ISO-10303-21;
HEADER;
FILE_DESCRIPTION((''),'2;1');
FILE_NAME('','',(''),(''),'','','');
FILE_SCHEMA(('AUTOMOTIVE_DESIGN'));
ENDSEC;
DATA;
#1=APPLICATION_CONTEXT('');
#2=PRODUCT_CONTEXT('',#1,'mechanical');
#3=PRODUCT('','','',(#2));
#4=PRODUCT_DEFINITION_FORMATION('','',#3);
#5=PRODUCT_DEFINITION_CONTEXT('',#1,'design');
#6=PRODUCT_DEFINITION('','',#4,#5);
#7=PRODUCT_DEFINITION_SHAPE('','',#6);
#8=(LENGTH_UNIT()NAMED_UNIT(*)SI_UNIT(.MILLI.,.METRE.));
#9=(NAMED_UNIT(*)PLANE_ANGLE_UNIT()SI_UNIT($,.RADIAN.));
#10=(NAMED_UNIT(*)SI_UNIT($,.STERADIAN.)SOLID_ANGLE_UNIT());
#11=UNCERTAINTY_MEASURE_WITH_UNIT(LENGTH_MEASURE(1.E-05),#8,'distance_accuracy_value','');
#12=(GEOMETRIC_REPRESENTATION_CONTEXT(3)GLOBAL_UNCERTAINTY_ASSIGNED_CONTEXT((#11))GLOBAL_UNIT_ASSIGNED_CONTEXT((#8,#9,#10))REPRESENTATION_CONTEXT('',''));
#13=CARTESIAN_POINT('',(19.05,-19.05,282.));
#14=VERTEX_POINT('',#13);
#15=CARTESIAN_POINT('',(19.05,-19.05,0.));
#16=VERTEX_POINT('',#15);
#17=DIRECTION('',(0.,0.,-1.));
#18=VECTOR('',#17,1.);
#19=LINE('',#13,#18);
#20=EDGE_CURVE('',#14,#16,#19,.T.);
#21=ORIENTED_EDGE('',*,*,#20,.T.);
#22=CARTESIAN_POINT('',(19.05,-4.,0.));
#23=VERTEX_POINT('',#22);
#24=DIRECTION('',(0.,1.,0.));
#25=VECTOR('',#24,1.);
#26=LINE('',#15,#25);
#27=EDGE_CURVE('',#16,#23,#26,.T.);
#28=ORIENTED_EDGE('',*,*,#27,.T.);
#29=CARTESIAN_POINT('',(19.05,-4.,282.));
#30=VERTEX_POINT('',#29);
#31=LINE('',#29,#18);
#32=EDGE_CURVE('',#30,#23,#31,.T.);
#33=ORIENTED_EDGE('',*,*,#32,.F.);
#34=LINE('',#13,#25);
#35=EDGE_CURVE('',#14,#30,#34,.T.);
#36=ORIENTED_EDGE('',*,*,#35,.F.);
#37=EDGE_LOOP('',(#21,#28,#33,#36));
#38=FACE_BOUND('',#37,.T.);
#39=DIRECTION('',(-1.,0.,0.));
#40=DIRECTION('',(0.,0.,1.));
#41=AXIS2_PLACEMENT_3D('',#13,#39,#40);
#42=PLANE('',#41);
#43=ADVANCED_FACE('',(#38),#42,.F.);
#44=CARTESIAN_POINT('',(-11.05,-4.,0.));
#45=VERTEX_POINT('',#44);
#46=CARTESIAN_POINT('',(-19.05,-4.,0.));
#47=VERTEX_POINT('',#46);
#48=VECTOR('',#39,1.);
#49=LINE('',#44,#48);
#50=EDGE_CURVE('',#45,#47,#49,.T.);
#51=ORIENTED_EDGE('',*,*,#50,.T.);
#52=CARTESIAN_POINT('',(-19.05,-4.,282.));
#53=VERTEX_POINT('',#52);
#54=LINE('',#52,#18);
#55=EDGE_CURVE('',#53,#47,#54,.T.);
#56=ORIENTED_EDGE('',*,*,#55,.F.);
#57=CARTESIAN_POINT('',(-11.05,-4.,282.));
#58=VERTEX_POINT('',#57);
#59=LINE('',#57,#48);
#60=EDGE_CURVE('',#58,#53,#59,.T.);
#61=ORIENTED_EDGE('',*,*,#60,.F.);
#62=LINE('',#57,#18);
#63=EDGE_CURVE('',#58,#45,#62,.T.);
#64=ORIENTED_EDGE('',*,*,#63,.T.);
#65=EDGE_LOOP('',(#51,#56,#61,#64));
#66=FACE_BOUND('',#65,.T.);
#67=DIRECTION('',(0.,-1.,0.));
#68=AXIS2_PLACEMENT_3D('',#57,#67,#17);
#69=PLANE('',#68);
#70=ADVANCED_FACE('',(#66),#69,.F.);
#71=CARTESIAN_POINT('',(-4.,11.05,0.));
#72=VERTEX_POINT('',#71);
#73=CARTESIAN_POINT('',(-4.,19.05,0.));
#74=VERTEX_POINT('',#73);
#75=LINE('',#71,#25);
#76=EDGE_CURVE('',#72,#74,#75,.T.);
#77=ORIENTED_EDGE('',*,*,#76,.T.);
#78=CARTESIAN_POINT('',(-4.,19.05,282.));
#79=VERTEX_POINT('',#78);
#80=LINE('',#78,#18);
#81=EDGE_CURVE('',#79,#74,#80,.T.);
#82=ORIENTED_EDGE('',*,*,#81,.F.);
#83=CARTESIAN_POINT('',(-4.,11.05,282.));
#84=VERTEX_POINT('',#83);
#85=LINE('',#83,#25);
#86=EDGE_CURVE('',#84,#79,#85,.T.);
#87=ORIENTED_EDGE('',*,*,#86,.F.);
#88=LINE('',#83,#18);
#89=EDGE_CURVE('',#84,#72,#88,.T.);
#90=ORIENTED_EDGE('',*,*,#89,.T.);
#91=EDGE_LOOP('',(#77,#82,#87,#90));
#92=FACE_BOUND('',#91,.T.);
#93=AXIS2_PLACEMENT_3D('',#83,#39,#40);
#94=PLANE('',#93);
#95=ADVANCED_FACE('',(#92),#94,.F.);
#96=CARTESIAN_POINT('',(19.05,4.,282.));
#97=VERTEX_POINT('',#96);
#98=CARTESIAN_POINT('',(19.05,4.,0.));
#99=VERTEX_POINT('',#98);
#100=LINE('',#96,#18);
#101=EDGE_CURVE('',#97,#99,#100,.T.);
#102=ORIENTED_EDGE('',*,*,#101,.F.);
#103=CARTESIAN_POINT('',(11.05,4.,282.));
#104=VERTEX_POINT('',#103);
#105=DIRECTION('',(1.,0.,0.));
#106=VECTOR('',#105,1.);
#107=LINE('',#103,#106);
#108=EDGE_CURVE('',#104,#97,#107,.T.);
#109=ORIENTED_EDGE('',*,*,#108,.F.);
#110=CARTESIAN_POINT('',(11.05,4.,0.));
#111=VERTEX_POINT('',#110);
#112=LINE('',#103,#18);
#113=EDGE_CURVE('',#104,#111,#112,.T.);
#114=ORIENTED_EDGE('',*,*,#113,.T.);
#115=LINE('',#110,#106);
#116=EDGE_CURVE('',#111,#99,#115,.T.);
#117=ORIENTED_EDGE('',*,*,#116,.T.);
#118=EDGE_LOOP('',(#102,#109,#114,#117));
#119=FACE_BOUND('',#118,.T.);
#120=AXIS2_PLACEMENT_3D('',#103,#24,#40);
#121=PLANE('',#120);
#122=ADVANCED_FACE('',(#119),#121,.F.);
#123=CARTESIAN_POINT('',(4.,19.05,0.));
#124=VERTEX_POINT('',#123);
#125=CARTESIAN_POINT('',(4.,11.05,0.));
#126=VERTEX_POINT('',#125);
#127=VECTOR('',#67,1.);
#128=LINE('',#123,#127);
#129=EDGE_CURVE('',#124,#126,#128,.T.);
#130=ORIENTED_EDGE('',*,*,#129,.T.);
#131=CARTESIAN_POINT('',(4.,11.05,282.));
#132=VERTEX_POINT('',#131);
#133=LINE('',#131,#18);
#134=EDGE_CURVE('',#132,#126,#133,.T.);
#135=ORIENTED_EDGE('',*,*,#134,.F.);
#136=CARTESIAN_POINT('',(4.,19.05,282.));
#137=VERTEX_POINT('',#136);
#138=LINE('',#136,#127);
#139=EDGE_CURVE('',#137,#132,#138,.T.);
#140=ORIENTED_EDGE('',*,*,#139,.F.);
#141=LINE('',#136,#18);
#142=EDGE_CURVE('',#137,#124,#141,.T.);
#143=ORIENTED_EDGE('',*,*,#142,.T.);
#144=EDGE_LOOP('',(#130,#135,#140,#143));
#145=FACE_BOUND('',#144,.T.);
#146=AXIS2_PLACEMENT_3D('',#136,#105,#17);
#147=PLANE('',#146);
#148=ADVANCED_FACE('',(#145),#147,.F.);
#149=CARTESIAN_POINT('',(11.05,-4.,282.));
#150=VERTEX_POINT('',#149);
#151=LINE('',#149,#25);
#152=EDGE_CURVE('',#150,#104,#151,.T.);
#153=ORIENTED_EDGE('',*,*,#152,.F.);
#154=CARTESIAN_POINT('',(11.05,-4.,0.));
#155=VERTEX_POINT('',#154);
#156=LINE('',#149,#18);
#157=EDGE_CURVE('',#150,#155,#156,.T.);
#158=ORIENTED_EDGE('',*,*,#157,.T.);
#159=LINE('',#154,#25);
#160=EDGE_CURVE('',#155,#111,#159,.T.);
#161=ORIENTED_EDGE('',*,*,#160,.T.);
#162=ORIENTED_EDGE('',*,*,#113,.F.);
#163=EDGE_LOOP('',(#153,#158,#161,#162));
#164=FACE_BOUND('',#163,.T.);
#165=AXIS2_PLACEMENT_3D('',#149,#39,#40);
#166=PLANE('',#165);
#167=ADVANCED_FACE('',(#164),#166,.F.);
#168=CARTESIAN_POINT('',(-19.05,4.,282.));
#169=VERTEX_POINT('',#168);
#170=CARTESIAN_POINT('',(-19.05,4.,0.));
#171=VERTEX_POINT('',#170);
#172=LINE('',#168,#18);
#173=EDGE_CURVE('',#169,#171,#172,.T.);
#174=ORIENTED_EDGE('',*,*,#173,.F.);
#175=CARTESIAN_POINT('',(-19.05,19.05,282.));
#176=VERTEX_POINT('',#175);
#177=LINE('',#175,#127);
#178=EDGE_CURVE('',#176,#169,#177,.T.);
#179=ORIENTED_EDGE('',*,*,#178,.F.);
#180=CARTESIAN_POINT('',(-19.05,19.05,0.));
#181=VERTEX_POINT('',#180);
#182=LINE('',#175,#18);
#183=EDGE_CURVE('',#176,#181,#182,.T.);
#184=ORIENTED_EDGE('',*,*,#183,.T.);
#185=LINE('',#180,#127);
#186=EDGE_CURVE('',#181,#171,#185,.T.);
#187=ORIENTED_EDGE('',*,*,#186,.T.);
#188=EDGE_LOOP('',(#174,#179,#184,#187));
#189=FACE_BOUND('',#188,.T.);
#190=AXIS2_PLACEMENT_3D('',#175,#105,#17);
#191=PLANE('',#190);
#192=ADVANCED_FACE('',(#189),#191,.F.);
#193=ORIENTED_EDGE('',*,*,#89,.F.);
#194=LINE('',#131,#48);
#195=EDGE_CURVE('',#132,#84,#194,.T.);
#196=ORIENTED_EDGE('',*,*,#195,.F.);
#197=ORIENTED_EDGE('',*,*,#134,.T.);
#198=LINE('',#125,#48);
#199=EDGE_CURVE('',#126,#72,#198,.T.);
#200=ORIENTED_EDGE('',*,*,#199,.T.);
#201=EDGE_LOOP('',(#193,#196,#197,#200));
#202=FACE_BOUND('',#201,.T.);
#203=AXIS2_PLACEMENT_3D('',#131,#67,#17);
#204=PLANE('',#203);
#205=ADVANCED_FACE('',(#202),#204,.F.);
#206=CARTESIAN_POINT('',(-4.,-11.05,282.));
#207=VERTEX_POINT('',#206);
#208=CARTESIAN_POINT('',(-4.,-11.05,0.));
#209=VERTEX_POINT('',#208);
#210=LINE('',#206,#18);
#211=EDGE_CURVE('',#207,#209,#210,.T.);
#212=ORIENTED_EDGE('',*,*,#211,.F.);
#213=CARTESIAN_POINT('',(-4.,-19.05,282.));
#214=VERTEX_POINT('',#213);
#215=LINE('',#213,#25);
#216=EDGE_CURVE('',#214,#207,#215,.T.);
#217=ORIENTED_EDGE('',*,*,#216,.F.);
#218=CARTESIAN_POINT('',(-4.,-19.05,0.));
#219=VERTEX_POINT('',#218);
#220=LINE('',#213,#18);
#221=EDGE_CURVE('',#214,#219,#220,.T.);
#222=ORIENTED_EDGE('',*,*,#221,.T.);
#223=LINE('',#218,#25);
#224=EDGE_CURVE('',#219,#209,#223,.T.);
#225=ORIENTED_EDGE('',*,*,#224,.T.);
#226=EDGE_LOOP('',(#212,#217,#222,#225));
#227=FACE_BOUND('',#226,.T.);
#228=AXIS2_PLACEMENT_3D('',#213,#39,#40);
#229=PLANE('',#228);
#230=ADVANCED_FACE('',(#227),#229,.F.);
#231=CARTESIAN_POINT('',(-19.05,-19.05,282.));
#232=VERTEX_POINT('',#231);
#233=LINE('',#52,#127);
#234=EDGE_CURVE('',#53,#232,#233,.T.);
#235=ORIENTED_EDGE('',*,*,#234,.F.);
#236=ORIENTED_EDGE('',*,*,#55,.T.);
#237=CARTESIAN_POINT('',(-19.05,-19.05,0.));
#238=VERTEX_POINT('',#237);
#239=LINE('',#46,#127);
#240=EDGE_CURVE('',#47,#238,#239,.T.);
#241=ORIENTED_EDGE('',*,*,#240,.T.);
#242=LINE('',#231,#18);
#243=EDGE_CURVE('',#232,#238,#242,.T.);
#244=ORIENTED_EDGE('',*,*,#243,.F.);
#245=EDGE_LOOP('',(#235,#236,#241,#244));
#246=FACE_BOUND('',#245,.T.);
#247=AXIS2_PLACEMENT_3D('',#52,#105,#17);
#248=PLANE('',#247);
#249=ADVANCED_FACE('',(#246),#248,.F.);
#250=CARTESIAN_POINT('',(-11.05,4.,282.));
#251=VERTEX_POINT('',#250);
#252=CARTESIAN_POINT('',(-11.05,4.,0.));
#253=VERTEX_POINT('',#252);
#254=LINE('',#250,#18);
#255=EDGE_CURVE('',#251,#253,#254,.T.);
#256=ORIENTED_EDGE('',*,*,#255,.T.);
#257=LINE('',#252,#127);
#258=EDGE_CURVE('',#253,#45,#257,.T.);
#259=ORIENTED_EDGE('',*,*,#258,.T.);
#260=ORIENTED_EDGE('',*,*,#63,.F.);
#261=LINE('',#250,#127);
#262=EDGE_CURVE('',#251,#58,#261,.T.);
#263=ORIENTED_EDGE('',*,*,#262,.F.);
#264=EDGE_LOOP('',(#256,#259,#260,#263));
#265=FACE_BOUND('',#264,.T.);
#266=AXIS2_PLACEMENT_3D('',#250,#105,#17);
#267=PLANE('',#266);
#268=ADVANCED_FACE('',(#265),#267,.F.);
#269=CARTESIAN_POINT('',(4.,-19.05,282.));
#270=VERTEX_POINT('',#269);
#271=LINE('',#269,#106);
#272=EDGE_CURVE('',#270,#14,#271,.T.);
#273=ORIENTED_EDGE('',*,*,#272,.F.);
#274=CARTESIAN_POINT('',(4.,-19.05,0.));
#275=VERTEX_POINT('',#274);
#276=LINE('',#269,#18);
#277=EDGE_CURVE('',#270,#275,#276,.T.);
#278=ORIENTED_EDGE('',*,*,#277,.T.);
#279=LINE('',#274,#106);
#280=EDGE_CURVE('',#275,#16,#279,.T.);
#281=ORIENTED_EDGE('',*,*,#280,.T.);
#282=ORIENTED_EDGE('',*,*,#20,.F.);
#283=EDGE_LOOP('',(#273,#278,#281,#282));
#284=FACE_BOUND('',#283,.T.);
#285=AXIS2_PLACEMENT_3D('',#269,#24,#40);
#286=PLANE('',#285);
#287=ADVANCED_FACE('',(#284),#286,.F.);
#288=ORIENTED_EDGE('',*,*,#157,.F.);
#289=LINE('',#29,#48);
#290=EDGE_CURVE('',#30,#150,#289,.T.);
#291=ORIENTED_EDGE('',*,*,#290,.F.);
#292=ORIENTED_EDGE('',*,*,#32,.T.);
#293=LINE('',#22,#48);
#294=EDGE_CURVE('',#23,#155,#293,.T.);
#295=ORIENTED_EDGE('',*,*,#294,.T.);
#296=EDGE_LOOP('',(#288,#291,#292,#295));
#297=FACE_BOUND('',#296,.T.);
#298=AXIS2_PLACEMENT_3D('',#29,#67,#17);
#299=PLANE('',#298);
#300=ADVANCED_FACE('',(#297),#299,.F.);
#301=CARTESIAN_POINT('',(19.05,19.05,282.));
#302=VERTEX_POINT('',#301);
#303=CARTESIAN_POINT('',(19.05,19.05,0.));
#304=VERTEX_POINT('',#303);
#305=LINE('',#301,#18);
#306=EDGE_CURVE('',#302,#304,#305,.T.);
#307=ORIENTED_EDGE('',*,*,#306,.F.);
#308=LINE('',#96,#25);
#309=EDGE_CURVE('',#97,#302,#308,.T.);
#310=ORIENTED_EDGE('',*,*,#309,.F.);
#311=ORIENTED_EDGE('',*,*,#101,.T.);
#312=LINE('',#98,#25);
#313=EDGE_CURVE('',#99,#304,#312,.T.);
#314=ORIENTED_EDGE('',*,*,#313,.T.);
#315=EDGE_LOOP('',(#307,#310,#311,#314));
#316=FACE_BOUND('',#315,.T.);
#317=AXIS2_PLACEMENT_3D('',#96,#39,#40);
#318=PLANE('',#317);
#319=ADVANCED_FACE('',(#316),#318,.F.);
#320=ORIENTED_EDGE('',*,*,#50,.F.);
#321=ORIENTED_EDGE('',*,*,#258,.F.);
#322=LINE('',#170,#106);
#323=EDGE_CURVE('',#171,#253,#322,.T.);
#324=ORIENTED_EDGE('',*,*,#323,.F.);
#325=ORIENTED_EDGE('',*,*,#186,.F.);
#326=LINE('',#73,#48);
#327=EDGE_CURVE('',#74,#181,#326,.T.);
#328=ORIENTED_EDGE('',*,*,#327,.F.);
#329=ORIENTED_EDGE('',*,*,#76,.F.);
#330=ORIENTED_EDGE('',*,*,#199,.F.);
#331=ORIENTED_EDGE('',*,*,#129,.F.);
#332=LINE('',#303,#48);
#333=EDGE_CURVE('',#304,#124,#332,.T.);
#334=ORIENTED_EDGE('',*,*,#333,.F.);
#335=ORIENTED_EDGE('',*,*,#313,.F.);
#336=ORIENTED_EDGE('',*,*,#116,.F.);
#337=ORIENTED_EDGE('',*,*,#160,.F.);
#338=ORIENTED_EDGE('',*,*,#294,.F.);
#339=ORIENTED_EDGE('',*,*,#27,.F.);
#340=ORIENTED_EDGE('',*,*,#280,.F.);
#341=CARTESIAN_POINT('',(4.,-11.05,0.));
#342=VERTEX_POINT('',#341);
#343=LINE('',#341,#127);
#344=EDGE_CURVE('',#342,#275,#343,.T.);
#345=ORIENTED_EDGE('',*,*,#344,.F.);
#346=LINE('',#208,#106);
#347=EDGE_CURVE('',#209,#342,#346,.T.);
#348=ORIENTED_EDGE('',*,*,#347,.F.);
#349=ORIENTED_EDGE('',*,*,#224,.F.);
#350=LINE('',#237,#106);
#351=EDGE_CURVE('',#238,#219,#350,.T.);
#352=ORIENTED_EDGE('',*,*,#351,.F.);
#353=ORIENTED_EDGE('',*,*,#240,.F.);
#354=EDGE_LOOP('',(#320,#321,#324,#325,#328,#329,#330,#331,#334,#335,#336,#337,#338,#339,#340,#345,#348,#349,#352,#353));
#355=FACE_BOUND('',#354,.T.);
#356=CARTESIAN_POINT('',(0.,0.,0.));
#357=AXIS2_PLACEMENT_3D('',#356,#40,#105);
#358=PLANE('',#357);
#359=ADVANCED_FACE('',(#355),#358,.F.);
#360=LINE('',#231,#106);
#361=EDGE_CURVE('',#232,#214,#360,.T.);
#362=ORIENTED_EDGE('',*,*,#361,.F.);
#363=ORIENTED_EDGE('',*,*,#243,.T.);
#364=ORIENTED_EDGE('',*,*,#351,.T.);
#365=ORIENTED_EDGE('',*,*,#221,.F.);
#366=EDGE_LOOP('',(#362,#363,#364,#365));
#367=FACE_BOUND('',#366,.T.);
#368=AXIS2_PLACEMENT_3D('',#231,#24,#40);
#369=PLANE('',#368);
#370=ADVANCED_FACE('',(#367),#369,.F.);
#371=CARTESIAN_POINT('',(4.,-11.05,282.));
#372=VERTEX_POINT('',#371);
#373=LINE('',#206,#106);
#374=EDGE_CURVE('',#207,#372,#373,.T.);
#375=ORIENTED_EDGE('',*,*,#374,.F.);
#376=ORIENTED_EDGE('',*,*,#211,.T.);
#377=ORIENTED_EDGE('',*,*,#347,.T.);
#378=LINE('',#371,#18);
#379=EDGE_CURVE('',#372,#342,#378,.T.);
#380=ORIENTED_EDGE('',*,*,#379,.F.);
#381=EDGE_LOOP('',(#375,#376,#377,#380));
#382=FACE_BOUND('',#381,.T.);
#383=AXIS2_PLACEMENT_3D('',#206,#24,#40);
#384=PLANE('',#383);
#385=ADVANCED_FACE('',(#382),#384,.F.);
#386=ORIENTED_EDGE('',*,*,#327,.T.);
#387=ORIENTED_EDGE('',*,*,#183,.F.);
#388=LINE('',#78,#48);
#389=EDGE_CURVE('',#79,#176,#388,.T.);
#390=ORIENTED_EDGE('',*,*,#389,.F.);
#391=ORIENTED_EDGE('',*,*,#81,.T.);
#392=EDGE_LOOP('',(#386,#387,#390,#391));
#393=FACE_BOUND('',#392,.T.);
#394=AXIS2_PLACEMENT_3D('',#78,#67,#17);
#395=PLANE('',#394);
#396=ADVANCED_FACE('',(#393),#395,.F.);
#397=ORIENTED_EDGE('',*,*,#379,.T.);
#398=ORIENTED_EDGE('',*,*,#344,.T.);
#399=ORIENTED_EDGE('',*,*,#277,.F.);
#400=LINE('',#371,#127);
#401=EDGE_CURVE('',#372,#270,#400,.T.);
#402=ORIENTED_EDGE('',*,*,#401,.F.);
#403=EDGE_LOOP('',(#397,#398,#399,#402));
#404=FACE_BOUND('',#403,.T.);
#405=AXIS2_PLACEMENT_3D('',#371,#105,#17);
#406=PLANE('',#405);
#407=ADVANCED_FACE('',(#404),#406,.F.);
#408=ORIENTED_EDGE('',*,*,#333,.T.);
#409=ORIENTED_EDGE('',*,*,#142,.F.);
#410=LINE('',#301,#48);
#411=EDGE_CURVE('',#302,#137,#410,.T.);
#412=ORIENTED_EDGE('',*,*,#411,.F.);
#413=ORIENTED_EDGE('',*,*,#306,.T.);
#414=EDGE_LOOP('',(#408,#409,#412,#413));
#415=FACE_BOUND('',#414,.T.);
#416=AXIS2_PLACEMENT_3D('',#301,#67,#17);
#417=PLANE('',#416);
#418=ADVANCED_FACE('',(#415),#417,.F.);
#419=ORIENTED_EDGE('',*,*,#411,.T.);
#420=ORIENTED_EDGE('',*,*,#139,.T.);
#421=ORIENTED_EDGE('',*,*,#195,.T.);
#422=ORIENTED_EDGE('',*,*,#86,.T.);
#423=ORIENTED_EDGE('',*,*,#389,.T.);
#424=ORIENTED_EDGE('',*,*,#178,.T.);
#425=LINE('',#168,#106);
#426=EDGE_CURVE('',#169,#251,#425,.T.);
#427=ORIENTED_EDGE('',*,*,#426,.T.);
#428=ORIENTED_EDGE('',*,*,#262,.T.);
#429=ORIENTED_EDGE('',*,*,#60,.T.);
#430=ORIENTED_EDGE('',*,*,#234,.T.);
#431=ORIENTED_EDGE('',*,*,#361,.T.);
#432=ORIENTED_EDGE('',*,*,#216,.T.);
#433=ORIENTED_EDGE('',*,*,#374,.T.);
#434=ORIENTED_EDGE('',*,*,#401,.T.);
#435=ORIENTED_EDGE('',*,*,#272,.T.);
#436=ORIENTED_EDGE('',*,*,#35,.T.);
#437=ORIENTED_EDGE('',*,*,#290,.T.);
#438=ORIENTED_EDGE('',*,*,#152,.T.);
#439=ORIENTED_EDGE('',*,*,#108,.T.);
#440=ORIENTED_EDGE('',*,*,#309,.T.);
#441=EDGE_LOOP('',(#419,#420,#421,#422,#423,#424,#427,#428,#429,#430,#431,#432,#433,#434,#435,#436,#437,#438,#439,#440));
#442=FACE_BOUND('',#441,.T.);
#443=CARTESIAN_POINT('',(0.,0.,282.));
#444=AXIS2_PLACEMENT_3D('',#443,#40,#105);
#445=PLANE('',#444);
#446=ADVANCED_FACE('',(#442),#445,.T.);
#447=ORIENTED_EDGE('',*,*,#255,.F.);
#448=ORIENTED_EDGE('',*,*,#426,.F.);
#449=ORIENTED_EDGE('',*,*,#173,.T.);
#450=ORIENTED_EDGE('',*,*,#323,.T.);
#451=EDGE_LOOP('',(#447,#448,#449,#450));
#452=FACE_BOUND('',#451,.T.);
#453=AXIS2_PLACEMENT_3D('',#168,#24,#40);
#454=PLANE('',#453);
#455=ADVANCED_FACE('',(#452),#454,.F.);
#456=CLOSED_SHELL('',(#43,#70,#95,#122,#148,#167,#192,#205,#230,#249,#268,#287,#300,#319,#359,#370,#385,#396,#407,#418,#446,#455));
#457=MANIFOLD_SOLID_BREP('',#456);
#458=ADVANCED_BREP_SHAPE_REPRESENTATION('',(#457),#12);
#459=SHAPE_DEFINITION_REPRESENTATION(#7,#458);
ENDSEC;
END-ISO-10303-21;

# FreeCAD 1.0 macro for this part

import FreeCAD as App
import Part
import Sketcher
from FreeCAD import Vector
Q = App.Units.Quantity


def add_polygon(sketch, points):
    """Adds a closed chain of lines whose ends are joined by coincident constraints."""
    first, n = sketch.GeometryCount, len(points)
    for a, b in zip(points, points[1:] + points[:1]):
        sketch.addGeometry(Part.LineSegment(App.Vector(*a, 0), App.Vector(*b, 0)), False)
    for i in range(n):
        sketch.addConstraint(Sketcher.Constraint("Coincident", first + i, 2, first + (i + 1) % n, 1))

doc = App.newDocument("Part")
body = doc.addObject("PartDesign::Body", "Body")

# Sketch on XY plane
sketch1 = doc.addObject("Sketcher::SketchObject", "Sketch")
body.addObject(sketch1)
sketch1.AttachmentSupport = (doc.XY_Plane, [""])
sketch1.MapMode = "FlatFace"
add_polygon(sketch1, [(-19.05, -19.05), (-4, -19.05), (-4, -11.05), (4, -11.05), (4, -19.05), (19.05, -19.05), (19.05, -4), (11.05, -4), (11.05, 4), (19.05, 4), (19.05, 19.05), (4, 19.05), (4, 11.05), (-4, 11.05), (-4, 19.05), (-19.05, 19.05), (-19.05, 4), (-11.05, 4), (-11.05, -4), (-19.05, -4)])  # lines 0-19
sketch1.addConstraint([
    Sketcher.Constraint("Horizontal", 0),
    Sketcher.Constraint("Vertical", 1),
    Sketcher.Constraint("Horizontal", 2),
    Sketcher.Constraint("Vertical", 3),
    Sketcher.Constraint("Horizontal", 4),
    Sketcher.Constraint("Vertical", 5),
    Sketcher.Constraint("Horizontal", 6),
    Sketcher.Constraint("Vertical", 7),
    Sketcher.Constraint("Horizontal", 8),
    Sketcher.Constraint("Vertical", 9),
    Sketcher.Constraint("Horizontal", 10),
    Sketcher.Constraint("Vertical", 11),
    Sketcher.Constraint("Horizontal", 12),
    Sketcher.Constraint("Vertical", 13),
    Sketcher.Constraint("Horizontal", 14),
    Sketcher.Constraint("Vertical", 15),
    Sketcher.Constraint("Horizontal", 16),
    Sketcher.Constraint("Vertical", 17),
    Sketcher.Constraint("Horizontal", 18),
    Sketcher.Constraint("Vertical", 19),
    Sketcher.Constraint("Symmetric", 0, 2, 10, 2, -1, 1),
    Sketcher.Constraint("Symmetric", 2, 2, 12, 2, -1, 1),
    Sketcher.Constraint("Symmetric", 4, 2, 14, 2, -1, 1),
    Sketcher.Constraint("Symmetric", 6, 2, 16, 2, -1, 1),
    Sketcher.Constraint("Symmetric", 8, 2, 18, 2, -1, 1),
    Sketcher.Constraint("Symmetric", 0, 2, 3, 2, -2),
    Sketcher.Constraint("Symmetric", 8, 2, 15, 2, -2),
    Sketcher.Constraint("Equal", 2, 6),
    Sketcher.Constraint("Equal", 18, 1),
    Sketcher.Constraint("Equal", 14, 5),
    Sketcher.Constraint("Equal", 3, 7),
    Sketcher.Constraint("DistanceX", 2, 1, 2, 2, Q("8 mm")),
    Sketcher.Constraint("DistanceX", 0, 1, 0, 2, Q("15.05 mm")),
])
pad1 = doc.addObject("PartDesign::Pad", "Pad")
body.addObject(pad1)
pad1.Profile = sketch1
pad1.Length = 282

doc.recompute()
